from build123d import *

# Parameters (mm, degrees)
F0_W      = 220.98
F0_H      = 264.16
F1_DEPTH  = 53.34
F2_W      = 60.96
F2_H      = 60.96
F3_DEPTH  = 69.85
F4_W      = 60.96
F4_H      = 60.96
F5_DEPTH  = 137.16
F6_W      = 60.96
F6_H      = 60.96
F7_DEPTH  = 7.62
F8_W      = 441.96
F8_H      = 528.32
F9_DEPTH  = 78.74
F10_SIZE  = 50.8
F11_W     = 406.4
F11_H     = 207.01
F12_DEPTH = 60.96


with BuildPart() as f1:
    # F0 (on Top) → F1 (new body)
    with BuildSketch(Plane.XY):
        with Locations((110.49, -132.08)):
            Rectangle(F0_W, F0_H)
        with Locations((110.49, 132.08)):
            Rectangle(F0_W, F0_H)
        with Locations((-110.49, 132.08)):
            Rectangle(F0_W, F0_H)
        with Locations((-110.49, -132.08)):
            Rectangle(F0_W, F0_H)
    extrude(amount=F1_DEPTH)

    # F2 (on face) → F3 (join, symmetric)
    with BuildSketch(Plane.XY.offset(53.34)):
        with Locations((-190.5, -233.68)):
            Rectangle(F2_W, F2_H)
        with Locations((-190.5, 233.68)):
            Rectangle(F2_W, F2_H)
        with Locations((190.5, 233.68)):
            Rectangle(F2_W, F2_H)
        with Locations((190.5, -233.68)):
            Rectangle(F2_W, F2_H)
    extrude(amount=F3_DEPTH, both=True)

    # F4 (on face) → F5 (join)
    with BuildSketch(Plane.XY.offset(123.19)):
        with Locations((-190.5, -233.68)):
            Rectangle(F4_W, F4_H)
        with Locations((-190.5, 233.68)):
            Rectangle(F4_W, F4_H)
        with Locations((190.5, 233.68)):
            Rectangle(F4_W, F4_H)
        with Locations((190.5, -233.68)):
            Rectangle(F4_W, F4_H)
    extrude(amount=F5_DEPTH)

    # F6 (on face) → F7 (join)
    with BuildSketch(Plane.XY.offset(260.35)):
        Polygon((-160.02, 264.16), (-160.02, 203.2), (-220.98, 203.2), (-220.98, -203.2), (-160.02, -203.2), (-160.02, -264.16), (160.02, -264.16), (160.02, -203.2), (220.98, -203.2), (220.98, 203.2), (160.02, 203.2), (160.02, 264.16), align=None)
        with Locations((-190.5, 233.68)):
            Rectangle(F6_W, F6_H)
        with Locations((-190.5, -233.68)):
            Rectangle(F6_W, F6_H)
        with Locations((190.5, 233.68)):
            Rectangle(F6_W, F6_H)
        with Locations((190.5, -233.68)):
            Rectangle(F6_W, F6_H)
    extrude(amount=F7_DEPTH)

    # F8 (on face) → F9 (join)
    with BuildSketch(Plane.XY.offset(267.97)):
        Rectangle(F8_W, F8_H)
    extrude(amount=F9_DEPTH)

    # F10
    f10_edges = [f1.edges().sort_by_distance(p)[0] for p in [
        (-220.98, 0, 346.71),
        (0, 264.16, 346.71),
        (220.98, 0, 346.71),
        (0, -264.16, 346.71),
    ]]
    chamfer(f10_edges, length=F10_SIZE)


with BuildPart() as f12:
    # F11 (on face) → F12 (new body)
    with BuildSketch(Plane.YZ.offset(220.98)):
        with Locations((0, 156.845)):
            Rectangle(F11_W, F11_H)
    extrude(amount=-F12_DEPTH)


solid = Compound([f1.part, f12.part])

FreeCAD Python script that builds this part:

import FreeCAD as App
import Part
import Sketcher

V = App.Vector
Q = App.Units.Quantity


def edges_at(feature, points):
    """Names of the edges that pass closest to the given points."""
    edges = feature.Shape.Edges
    near = lambda p: min(range(len(edges)), key=lambda i: edges[i].distToShape(Part.Vertex(*p))[0])
    return sorted({f"Edge{near(p) + 1}" for p in points})


def add_polygon(sketch, points):
    """Adds a closed chain of lines whose ends are joined by coincident constraints."""
    first, n = sketch.GeometryCount, len(points)
    for a, b in zip(points, points[1:] + points[:1]):
        sketch.addGeometry(Part.LineSegment(App.Vector(*a, 0), App.Vector(*b, 0)), False)
    for i in range(n):
        sketch.addConstraint(Sketcher.Constraint("Coincident", first + i, 2, first + (i + 1) % n, 1))

doc = App.newDocument("Part")
body = doc.addObject("PartDesign::Body", "Body")

sketch1 = body.newObject("Sketcher::SketchObject", "Sketch")
sketch1.AttachmentSupport = (doc.getObject("XY_Plane"), [""])
sketch1.MapMode = "FlatFace"
add_polygon(sketch1, [(221, -264), (221, 264), (-221, 264), (-221, -264)])
sketch1.addConstraint([
    Sketcher.Constraint("Vertical", 0),
    Sketcher.Constraint("Horizontal", 1),
    Sketcher.Constraint("Vertical", 2),
    Sketcher.Constraint("Horizontal", 3),
    Sketcher.Constraint("Symmetric", 0, 2, 2, 2, -1, 1),
    Sketcher.Constraint("DistanceX", 1, 2, 1, 1, Q("17.4 in")),
    Sketcher.Constraint("DistanceY", 0, 1, 0, 2, Q("20.8 in")),
])
pad1 = body.newObject("PartDesign::Pad", "Pad")
pad1.Profile = sketch1
pad1.Length = Q("2.1 in")

sketch2 = body.newObject("Sketcher::SketchObject", "Sketch001")
sketch2.AttachmentSupport = (doc.getObject("XY_Plane"), [""])
sketch2.MapMode = "FlatFace"
sketch2.AttachmentOffset = App.Placement(V(0, 0, 2.1 * 25.4), App.Rotation())
add_polygon(sketch2, [(-221, -203), (-221, -264), (-160, -264), (-160, -203)])
add_polygon(sketch2, [(-221, 264), (-221, 203), (-160, 203), (-160, 264)])
add_polygon(sketch2, [(160, 264), (160, 203), (221, 203), (221, 264)])
add_polygon(sketch2, [(160, -203), (160, -264), (221, -264), (221, -203)])
sketch2.addConstraint([
    Sketcher.Constraint("Vertical", 0),
    Sketcher.Constraint("Horizontal", 1),
    Sketcher.Constraint("Vertical", 2),
    Sketcher.Constraint("Horizontal", 3),
    Sketcher.Constraint("Vertical", 4),
    Sketcher.Constraint("Horizontal", 5),
    Sketcher.Constraint("Vertical", 6),
    Sketcher.Constraint("Horizontal", 7),
    Sketcher.Constraint("Vertical", 8),
    Sketcher.Constraint("Horizontal", 9),
    Sketcher.Constraint("Vertical", 10),
    Sketcher.Constraint("Horizontal", 11),
    Sketcher.Constraint("Vertical", 12),
    Sketcher.Constraint("Horizontal", 13),
    Sketcher.Constraint("Vertical", 14),
    Sketcher.Constraint("Horizontal", 15),
    Sketcher.Constraint("Symmetric", 2, 2, 8, 2, -1, 1),
    Sketcher.Constraint("Symmetric", 0, 2, 10, 2, -1, 1),
    Sketcher.Constraint("Symmetric", 6, 2, 12, 2, -1, 1),
    Sketcher.Constraint("Symmetric", 4, 2, 14, 2, -1, 1),
    Sketcher.Constraint("Symmetric", 5, 2, 8, 2, -2),
    Sketcher.Constraint("Symmetric", 7, 2, 10, 2, -2),
    Sketcher.Constraint("Equal", 15, 0),
    Sketcher.Constraint("DistanceX", 1, 1, 1, 2, Q("2.4 in")),
    Sketcher.Constraint("DistanceY", 2, 2, -1, 1, Q("8 in")),
    Sketcher.Constraint("DistanceX", 4, 2, 8, 2, Q("15 in")),
])
pad2 = body.newObject("PartDesign::Pad", "Pad001")
pad2.Profile = sketch2
pad2.Length = Q("5.5 in")
pad2.Midplane = True

sketch3 = body.newObject("Sketcher::SketchObject", "Sketch002")
sketch3.AttachmentSupport = (doc.getObject("XY_Plane"), [""])
sketch3.MapMode = "FlatFace"
sketch3.AttachmentOffset = App.Placement(V(0, 0, 4.85 * 25.4), App.Rotation())
add_polygon(sketch3, [(-221, -203), (-221, -264), (-160, -264), (-160, -203)])
add_polygon(sketch3, [(-221, 264), (-221, 203), (-160, 203), (-160, 264)])
add_polygon(sketch3, [(160, 264), (160, 203), (221, 203), (221, 264)])
add_polygon(sketch3, [(160, -203), (160, -264), (221, -264), (221, -203)])
sketch3.addConstraint([
    Sketcher.Constraint("Vertical", 0),
    Sketcher.Constraint("Horizontal", 1),
    Sketcher.Constraint("Vertical", 2),
    Sketcher.Constraint("Horizontal", 3),
    Sketcher.Constraint("Vertical", 4),
    Sketcher.Constraint("Horizontal", 5),
    Sketcher.Constraint("Vertical", 6),
    Sketcher.Constraint("Horizontal", 7),
    Sketcher.Constraint("Vertical", 8),
    Sketcher.Constraint("Horizontal", 9),
    Sketcher.Constraint("Vertical", 10),
    Sketcher.Constraint("Horizontal", 11),
    Sketcher.Constraint("Vertical", 12),
    Sketcher.Constraint("Horizontal", 13),
    Sketcher.Constraint("Vertical", 14),
    Sketcher.Constraint("Horizontal", 15),
    Sketcher.Constraint("Symmetric", 2, 2, 8, 2, -1, 1),
    Sketcher.Constraint("Symmetric", 0, 2, 10, 2, -1, 1),
    Sketcher.Constraint("Symmetric", 6, 2, 12, 2, -1, 1),
    Sketcher.Constraint("Symmetric", 4, 2, 14, 2, -1, 1),
    Sketcher.Constraint("Symmetric", 5, 2, 8, 2, -2),
    Sketcher.Constraint("Symmetric", 7, 2, 10, 2, -2),
    Sketcher.Constraint("Equal", 15, 0),
    Sketcher.Constraint("DistanceX", 1, 1, 1, 2, Q("2.4 in")),
    Sketcher.Constraint("DistanceY", 2, 2, -1, 1, Q("8 in")),
    Sketcher.Constraint("DistanceX", 4, 2, 8, 2, Q("15 in")),
])
pad3 = body.newObject("PartDesign::Pad", "Pad002")
pad3.Profile = sketch3
pad3.Length = Q("5.4 in")

sketch4 = body.newObject("Sketcher::SketchObject", "Sketch003")
sketch4.AttachmentSupport = (doc.getObject("XY_Plane"), [""])
sketch4.MapMode = "FlatFace"
sketch4.AttachmentOffset = App.Placement(V(0, 0, 10.25 * 25.4), App.Rotation())
add_polygon(sketch4, [(221, 264), (-221, 264), (-221, -264), (221, -264)])
sketch4.addConstraint([
    Sketcher.Constraint("Horizontal", 0),
    Sketcher.Constraint("Vertical", 1),
    Sketcher.Constraint("Horizontal", 2),
    Sketcher.Constraint("Vertical", 3),
    Sketcher.Constraint("Symmetric", 0, 2, 2, 2, -1, 1),
    Sketcher.Constraint("DistanceX", 0, 2, 0, 1, Q("17.4 in")),
    Sketcher.Constraint("DistanceY", 1, 2, 1, 1, Q("20.8 in")),
])
pad4 = body.newObject("PartDesign::Pad", "Pad003")
pad4.Profile = sketch4
pad4.Length = Q("0.3 in")

sketch5 = body.newObject("Sketcher::SketchObject", "Sketch004")
sketch5.AttachmentSupport = (doc.getObject("XY_Plane"), [""])
sketch5.MapMode = "FlatFace"
sketch5.AttachmentOffset = App.Placement(V(0, 0, 10.55 * 25.4), App.Rotation())
add_polygon(sketch5, [(-221, 264), (-221, -264), (221, -264), (221, 264)])
sketch5.addConstraint([
    Sketcher.Constraint("Vertical", 0),
    Sketcher.Constraint("Horizontal", 1),
    Sketcher.Constraint("Vertical", 2),
    Sketcher.Constraint("Horizontal", 3),
    Sketcher.Constraint("Symmetric", 0, 2, 2, 2, -1, 1),
    Sketcher.Constraint("DistanceX", 1, 1, 1, 2, Q("17.4 in")),
    Sketcher.Constraint("DistanceY", 0, 2, 0, 1, Q("20.8 in")),
])
pad5 = body.newObject("PartDesign::Pad", "Pad004")
pad5.Profile = sketch5
pad5.Length = Q("3.1 in")
doc.recompute()

chamfer = body.newObject("PartDesign::Chamfer", "Chamfer")
chamfer.Base = (pad5, edges_at(pad5, [
    (-220.98, 0, 346.71),
    (0, 264.16, 346.71),
    (220.98, 0, 346.71),
    (0, -264.16, 346.71),
]))
chamfer.Size = Q("2 in")
body2 = doc.addObject("PartDesign::Body", "Body001")

sketch6 = body2.newObject("Sketcher::SketchObject", "Sketch005")
sketch6.AttachmentSupport = (doc.getObject("YZ_Plane001"), [""])
sketch6.MapMode = "FlatFace"
sketch6.AttachmentOffset = App.Placement(V(0, 0, 8.7 * 25.4), App.Rotation())
add_polygon(sketch6, [(-203, 260), (-203, 53), (203, 53), (203, 260)])
sketch6.addConstraint([
    Sketcher.Constraint("Vertical", 0),
    Sketcher.Constraint("Horizontal", 1),
    Sketcher.Constraint("Vertical", 2),
    Sketcher.Constraint("Horizontal", 3),
    Sketcher.Constraint("DistanceX", 1, 1, 1, 2, Q("16 in")),
    Sketcher.Constraint("DistanceX", 0, 2, -1, 1, Q("8 in")),
    Sketcher.Constraint("DistanceY", 0, 2, 0, 1, Q("8.15 in")),
    Sketcher.Constraint("DistanceY", -1, 1, 0, 2, Q("2.1 in")),
])
pad6 = body2.newObject("PartDesign::Pad", "Pad005")
pad6.Profile = sketch6
pad6.Length = Q("2.4 in")
pad6.Reversed = True

doc.recompute()
